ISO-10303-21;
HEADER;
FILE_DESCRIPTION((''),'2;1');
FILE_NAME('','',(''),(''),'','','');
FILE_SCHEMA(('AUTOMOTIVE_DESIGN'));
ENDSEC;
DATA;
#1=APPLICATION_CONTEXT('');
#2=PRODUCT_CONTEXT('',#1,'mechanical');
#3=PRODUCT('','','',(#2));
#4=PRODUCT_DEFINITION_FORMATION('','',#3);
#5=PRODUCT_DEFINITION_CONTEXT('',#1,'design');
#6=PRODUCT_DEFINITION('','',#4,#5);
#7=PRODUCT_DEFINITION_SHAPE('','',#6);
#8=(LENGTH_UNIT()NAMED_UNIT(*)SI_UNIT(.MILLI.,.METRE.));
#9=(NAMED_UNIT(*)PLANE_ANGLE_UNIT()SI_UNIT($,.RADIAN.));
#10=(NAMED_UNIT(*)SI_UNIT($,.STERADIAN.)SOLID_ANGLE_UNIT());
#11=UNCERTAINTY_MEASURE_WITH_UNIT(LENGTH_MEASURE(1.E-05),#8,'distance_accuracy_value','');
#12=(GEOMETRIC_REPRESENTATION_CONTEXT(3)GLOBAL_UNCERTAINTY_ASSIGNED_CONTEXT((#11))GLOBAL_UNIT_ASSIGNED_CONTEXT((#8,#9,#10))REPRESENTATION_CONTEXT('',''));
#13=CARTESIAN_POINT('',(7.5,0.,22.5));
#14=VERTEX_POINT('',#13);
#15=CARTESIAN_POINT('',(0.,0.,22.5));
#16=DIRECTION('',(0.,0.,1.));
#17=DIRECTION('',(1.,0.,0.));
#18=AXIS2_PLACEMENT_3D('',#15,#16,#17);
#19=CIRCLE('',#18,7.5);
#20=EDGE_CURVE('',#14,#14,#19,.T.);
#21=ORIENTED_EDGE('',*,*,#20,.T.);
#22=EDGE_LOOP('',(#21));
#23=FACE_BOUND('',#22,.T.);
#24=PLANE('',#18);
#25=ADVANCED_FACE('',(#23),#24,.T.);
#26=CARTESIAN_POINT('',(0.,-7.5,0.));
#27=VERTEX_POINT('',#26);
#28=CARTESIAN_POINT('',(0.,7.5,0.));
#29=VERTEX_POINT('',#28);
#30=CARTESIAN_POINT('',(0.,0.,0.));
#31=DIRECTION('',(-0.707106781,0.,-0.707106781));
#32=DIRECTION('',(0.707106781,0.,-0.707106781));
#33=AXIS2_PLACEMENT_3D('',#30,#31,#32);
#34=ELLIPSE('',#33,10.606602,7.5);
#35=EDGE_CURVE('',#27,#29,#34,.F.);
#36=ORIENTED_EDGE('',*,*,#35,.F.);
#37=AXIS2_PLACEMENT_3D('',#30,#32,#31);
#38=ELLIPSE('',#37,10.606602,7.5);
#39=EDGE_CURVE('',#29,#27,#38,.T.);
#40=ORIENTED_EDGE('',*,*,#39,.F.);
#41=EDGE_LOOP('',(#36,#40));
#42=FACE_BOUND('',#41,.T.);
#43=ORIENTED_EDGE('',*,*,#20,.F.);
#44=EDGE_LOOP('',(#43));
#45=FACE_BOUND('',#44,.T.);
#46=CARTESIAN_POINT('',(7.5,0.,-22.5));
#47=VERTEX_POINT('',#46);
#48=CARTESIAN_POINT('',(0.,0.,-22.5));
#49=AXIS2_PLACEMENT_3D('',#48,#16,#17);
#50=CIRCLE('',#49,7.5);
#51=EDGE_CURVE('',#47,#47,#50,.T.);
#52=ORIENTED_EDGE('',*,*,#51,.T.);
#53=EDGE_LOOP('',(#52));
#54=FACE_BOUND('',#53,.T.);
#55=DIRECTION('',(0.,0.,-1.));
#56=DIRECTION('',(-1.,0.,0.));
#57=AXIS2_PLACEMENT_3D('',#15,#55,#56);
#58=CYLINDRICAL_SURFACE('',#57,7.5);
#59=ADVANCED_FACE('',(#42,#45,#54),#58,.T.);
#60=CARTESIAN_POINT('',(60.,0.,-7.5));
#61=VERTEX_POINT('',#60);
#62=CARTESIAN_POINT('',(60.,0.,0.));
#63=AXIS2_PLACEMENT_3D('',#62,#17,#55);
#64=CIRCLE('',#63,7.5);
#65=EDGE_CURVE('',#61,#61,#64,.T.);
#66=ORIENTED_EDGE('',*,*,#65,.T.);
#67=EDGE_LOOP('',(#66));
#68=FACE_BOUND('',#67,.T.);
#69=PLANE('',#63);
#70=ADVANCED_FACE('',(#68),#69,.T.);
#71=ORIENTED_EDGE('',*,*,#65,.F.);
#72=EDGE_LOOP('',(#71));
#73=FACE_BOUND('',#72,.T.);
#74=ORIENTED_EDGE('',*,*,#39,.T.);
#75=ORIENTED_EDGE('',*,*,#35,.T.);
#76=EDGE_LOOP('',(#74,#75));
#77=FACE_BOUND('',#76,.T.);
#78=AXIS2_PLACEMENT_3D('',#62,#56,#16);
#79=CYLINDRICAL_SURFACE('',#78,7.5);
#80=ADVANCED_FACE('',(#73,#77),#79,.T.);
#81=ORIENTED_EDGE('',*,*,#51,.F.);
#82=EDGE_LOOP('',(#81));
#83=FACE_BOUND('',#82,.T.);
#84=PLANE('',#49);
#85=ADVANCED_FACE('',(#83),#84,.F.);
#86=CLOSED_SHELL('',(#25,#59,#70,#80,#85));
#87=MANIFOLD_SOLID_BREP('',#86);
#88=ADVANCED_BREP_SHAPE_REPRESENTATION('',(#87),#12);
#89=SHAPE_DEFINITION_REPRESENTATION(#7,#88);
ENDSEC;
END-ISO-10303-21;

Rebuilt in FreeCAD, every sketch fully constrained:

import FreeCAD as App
import Part
import Sketcher

V = App.Vector

doc = App.newDocument("Part")
body = doc.addObject("PartDesign::Body", "Body")

sketch1 = body.newObject("Sketcher::SketchObject", "Sketch")
sketch1.AttachmentSupport = (doc.getObject("XY_Plane"), [""])
sketch1.MapMode = "FlatFace"
sketch1.addGeometry(Part.Circle(V(0, 0, 0), V(0, 0, 1), 7.5), False)
sketch1.addConstraint([
    Sketcher.Constraint("Coincident", 0, 3, -1, 1),
    Sketcher.Constraint("Diameter", 0, 15.0),
])
pad1 = body.newObject("PartDesign::Pad", "Pad")
pad1.Profile = sketch1
pad1.Length = 45
pad1.Midplane = True

sketch2 = body.newObject("Sketcher::SketchObject", "Sketch001")
sketch2.AttachmentSupport = (doc.getObject("YZ_Plane"), [""])
sketch2.MapMode = "FlatFace"
sketch2.addGeometry(Part.Circle(V(0, 0, 0), V(0, 0, 1), 7.5), False)
sketch2.addConstraint([
    Sketcher.Constraint("Coincident", 0, 3, -1, 1),
    Sketcher.Constraint("Diameter", 0, 15.0),
])
pad2 = body.newObject("PartDesign::Pad", "Pad001")
pad2.Profile = sketch2
pad2.Length = 60

doc.recompute()
